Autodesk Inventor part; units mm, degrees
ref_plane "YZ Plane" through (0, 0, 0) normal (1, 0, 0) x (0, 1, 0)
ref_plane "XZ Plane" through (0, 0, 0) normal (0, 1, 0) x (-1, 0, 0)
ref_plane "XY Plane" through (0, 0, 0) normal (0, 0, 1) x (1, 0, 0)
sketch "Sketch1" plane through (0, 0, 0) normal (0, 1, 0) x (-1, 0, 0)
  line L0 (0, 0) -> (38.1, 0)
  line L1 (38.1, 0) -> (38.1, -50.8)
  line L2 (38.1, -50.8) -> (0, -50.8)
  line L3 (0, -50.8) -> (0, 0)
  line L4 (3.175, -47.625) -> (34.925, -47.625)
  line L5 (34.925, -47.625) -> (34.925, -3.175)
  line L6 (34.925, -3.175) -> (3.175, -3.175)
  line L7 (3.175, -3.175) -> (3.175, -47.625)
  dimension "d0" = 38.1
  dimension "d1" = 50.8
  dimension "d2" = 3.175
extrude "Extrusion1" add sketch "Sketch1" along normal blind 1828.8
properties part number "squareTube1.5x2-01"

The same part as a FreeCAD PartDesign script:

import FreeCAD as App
import Part
import Sketcher

V = App.Vector
Q = App.Units.Quantity


def add_polygon(sketch, points):
    """Adds a closed chain of lines whose ends are joined by coincident constraints."""
    first, n = sketch.GeometryCount, len(points)
    for a, b in zip(points, points[1:] + points[:1]):
        sketch.addGeometry(Part.LineSegment(App.Vector(*a, 0), App.Vector(*b, 0)), False)
    for i in range(n):
        sketch.addConstraint(Sketcher.Constraint("Coincident", first + i, 2, first + (i + 1) % n, 1))

doc = App.newDocument("Part")
body = doc.addObject("PartDesign::Body", "Body")

# Sketch on XZ plane
sketch1 = body.newObject("Sketcher::SketchObject", "Sketch")
sketch1.AttachmentSupport = (doc.getObject("XZ_Plane"), [""])
sketch1.MapMode = "FlatFace"
add_polygon(sketch1, [(-38, 0), (0, 0), (0, -51), (-38, -51)])  # lines 0-3
add_polygon(sketch1, [(-35, -48), (-3, -48), (-3, -3), (-35, -3)])  # lines 4-7
sketch1.addConstraint([
    Sketcher.Constraint("Horizontal", 0),
    Sketcher.Constraint("Vertical", 1),
    Sketcher.Constraint("Horizontal", 2),
    Sketcher.Constraint("Vertical", 3),
    Sketcher.Constraint("Horizontal", 4),
    Sketcher.Constraint("Vertical", 5),
    Sketcher.Constraint("Horizontal", 6),
    Sketcher.Constraint("Vertical", 7),
    Sketcher.Constraint("Coincident", 0, 2, -1, 1),
    Sketcher.Constraint("DistanceY", 1, 2, 1, 1, Q("2 in")),
    Sketcher.Constraint("DistanceX", 0, 1, 0, 2, Q("1.5 in")),
    Sketcher.Constraint("DistanceX", 4, 2, -1, 1, Q("0.125 in")),
    Sketcher.Constraint("DistanceY", 5, 2, -1, 1, Q("0.125 in")),
    Sketcher.Constraint("DistanceY", 1, 2, 4, 2, Q("0.125 in")),
    Sketcher.Constraint("DistanceX", 3, 2, 6, 2, Q("0.125 in")),
])
pad1 = body.newObject("PartDesign::Pad", "Pad")
pad1.Profile = sketch1
pad1.Length = Q("72 in")
pad1.Reversed = True

doc.recompute()
